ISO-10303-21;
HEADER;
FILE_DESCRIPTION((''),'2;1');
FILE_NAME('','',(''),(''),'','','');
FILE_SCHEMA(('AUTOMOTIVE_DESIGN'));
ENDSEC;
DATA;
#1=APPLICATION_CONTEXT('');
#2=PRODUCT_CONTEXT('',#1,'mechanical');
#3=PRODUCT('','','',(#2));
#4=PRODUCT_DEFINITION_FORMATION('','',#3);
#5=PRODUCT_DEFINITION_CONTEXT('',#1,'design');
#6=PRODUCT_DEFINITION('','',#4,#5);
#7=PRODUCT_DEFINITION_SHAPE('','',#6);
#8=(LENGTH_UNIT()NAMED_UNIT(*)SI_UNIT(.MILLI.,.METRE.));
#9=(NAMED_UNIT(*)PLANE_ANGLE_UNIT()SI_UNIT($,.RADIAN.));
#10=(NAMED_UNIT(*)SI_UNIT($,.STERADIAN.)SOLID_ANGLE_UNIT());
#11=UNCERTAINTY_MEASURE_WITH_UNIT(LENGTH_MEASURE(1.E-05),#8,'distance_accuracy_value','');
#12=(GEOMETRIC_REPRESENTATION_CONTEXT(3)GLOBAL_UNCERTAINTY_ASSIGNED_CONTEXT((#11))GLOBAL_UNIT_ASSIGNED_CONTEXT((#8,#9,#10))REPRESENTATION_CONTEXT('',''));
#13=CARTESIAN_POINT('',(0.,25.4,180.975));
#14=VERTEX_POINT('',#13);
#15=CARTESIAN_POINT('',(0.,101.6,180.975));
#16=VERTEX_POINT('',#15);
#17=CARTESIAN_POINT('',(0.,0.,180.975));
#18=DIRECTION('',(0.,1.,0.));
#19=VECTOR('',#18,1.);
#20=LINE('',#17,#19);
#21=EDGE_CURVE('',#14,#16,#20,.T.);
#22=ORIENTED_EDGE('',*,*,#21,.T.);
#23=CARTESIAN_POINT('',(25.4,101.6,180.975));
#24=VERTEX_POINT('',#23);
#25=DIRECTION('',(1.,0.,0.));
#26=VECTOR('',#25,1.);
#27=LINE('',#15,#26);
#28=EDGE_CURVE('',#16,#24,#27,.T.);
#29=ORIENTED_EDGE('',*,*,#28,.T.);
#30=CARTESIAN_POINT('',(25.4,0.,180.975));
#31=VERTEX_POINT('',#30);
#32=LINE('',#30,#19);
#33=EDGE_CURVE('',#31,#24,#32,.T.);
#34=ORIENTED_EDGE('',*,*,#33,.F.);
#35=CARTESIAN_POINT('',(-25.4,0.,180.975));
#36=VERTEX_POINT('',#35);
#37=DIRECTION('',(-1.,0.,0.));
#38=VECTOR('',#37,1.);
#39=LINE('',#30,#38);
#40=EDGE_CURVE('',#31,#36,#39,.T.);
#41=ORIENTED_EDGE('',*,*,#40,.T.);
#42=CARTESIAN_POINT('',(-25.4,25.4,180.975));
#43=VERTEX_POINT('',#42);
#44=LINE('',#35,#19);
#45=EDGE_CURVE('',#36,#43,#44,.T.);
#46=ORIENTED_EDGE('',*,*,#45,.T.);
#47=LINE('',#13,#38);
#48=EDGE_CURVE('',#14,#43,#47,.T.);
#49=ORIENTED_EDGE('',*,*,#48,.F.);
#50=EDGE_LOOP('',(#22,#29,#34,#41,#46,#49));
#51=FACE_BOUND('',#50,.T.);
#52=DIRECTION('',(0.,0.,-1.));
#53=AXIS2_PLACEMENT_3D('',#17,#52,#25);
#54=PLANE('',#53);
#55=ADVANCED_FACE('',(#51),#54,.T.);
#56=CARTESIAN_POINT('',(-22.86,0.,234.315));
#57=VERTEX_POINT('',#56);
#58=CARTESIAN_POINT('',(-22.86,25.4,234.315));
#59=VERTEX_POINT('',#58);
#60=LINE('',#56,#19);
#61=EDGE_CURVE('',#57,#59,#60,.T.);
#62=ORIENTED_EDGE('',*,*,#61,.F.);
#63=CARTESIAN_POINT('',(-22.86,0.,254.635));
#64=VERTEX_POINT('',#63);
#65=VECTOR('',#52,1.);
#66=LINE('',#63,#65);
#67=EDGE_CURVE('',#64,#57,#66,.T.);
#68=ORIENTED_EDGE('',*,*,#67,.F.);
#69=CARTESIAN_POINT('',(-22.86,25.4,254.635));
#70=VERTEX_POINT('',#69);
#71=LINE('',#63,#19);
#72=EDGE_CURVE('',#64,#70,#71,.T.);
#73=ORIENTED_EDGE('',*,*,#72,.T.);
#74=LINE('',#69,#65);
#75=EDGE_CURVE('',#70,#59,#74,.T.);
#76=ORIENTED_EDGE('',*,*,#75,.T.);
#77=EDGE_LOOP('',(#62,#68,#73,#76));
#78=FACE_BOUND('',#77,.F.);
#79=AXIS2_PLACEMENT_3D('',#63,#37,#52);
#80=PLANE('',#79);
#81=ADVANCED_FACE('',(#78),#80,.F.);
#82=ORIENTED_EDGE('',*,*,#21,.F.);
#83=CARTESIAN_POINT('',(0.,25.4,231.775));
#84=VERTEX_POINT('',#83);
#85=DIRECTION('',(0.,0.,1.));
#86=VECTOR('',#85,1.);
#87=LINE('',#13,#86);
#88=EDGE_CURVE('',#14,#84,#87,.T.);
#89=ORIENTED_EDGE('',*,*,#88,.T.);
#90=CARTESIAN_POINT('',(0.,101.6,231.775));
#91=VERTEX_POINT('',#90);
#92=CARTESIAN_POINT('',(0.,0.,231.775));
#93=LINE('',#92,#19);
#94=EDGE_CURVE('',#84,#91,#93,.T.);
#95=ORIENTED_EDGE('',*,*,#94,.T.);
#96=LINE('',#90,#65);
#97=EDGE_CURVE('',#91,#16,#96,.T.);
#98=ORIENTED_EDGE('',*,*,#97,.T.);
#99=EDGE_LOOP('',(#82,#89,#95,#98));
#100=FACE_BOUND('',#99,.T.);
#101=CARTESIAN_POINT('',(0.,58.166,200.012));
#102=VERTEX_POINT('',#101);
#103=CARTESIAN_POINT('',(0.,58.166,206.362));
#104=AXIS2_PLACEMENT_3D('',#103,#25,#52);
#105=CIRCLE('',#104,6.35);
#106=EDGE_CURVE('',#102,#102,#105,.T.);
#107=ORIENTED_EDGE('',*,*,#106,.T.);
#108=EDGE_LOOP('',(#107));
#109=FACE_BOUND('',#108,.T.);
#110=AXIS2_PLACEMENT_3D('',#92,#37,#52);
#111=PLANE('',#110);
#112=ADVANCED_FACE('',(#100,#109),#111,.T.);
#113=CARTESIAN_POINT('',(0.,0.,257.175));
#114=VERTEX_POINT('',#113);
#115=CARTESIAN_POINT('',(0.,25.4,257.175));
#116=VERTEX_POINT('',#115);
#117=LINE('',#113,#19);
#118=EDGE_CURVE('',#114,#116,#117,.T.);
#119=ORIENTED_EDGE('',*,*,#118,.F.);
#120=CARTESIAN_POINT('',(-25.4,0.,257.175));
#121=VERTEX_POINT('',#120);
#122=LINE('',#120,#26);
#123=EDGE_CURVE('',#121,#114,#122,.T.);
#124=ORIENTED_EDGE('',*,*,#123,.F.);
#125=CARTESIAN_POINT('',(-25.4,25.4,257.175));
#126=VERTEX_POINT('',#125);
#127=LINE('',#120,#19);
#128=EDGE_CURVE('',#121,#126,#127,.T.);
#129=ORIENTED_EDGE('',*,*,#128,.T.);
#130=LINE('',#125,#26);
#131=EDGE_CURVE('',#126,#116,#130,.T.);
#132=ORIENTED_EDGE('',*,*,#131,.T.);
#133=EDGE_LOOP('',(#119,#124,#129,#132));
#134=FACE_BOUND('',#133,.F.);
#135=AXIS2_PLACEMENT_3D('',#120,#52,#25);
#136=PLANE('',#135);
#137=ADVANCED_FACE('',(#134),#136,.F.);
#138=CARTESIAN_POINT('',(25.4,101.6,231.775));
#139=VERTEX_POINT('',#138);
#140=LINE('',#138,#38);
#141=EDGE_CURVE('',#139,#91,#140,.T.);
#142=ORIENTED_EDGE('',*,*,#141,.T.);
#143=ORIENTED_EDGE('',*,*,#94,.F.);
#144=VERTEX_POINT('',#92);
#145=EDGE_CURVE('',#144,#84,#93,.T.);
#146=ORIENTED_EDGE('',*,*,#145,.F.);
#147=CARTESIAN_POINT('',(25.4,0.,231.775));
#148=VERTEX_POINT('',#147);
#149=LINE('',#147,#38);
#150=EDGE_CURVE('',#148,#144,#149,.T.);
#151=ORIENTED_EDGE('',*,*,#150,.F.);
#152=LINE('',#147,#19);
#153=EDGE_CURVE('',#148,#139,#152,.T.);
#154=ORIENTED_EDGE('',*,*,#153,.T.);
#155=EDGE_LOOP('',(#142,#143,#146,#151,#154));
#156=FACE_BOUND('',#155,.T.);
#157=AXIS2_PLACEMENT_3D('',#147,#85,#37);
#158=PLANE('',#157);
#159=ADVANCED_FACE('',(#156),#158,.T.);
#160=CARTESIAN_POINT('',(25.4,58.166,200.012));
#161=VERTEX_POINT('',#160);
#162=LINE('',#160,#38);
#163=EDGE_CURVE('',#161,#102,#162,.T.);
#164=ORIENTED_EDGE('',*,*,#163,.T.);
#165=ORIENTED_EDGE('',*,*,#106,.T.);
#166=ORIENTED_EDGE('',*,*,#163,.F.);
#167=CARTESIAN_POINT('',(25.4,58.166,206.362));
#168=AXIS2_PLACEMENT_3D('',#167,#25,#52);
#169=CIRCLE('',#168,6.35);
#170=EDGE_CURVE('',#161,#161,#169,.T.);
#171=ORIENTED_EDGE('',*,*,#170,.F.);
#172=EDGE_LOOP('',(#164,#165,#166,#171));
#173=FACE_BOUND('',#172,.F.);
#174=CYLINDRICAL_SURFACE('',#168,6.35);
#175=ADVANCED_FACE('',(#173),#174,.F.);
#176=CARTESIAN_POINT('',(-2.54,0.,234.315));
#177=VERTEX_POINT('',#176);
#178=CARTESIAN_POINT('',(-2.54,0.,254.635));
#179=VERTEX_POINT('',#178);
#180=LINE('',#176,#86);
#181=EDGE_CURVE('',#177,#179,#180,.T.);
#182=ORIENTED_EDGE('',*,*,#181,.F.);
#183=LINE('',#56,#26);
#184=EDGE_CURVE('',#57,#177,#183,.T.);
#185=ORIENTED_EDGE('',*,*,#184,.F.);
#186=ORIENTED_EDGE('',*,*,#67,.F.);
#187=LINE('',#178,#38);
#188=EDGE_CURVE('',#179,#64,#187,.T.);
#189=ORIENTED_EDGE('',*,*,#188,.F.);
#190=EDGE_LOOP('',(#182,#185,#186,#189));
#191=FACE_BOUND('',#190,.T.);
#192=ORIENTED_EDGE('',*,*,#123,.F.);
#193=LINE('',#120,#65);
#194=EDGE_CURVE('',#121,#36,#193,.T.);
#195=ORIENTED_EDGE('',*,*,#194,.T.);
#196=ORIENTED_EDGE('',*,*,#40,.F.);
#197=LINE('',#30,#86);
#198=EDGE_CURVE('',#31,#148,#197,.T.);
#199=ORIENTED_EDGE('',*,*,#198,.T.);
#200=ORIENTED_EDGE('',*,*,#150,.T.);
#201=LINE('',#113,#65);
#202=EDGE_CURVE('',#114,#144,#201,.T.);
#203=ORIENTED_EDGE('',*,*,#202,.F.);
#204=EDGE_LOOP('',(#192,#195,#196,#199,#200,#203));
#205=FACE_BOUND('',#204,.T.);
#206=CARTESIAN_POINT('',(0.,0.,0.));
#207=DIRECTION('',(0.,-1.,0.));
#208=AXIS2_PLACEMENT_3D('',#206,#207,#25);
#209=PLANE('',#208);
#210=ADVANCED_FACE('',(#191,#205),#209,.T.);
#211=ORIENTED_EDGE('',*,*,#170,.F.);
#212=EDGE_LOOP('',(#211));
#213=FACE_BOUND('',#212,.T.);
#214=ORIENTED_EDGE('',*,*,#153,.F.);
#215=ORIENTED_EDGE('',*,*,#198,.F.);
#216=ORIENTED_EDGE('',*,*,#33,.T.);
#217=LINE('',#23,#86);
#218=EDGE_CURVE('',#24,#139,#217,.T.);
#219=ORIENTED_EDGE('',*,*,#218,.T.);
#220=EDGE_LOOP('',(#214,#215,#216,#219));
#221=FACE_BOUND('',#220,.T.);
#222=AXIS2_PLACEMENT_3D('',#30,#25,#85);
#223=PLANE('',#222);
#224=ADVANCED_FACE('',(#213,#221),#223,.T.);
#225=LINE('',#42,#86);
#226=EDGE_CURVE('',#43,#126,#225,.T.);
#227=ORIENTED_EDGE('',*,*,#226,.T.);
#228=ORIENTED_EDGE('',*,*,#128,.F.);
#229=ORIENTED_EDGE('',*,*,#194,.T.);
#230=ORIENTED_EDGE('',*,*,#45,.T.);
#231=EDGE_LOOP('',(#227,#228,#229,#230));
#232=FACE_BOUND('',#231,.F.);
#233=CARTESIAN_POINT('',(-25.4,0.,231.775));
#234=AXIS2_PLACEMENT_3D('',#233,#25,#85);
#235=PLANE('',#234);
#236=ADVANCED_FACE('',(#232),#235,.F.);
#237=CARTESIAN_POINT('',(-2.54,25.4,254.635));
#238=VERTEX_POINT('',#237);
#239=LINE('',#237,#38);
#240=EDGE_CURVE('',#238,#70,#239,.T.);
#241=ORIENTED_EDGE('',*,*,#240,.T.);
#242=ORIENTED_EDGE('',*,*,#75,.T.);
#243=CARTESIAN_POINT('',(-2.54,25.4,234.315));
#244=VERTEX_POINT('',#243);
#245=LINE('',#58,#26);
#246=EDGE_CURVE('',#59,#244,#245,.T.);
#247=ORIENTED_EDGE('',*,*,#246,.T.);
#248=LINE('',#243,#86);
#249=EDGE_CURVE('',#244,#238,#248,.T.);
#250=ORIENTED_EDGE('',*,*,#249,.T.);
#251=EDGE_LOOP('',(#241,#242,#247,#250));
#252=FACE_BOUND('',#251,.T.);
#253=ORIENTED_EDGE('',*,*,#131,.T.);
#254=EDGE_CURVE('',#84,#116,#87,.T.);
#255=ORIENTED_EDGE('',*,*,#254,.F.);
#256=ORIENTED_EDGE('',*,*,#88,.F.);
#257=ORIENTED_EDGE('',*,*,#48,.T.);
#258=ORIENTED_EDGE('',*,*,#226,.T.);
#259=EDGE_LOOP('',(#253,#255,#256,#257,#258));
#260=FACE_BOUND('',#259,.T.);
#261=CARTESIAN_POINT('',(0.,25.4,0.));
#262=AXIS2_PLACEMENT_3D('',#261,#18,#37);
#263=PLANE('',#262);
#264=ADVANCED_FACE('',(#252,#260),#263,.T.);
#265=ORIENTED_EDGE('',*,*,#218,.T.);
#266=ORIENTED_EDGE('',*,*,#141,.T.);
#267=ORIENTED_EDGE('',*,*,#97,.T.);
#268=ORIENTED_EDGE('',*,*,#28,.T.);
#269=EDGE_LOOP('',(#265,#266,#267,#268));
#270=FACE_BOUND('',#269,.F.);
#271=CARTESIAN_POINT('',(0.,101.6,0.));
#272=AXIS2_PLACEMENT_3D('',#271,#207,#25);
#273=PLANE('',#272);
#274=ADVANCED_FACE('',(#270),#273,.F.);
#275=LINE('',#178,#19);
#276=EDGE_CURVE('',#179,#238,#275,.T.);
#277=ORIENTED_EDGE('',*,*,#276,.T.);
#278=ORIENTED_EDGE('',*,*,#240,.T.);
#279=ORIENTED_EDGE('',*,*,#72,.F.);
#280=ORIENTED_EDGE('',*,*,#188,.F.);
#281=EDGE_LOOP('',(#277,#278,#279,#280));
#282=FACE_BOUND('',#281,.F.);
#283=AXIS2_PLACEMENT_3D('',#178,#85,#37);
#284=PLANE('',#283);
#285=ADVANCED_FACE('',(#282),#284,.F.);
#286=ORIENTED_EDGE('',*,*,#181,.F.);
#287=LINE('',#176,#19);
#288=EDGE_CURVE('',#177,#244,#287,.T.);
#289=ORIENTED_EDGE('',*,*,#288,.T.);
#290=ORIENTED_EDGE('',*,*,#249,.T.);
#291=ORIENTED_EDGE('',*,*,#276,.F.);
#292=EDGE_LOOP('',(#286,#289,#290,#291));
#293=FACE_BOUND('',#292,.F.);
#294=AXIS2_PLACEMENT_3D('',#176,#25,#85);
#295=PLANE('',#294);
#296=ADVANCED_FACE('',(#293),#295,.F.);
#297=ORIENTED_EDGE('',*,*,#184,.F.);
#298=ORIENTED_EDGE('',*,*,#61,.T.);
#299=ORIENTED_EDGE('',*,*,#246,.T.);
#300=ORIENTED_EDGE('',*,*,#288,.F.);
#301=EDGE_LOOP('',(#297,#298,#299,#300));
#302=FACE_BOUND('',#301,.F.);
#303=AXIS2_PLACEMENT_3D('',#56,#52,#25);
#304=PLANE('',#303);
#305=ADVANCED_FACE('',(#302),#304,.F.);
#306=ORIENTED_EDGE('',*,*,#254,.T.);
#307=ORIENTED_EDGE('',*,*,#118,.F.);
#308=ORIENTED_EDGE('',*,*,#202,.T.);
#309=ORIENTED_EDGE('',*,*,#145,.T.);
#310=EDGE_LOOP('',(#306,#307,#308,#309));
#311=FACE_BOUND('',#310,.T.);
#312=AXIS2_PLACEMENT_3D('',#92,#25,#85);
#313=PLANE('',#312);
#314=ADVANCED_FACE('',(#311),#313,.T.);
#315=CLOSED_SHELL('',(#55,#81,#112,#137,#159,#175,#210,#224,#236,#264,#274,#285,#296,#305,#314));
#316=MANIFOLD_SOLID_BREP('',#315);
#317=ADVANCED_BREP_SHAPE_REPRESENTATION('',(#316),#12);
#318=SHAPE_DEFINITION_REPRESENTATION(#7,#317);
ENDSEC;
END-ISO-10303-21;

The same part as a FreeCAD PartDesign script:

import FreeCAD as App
import Part
import Sketcher
from FreeCAD import Vector
Q = App.Units.Quantity


def add_polygon(sketch, points):
    """Adds a closed chain of lines whose ends are joined by coincident constraints."""
    first, n = sketch.GeometryCount, len(points)
    for a, b in zip(points, points[1:] + points[:1]):
        sketch.addGeometry(Part.LineSegment(App.Vector(*a, 0), App.Vector(*b, 0)), False)
    for i in range(n):
        sketch.addConstraint(Sketcher.Constraint("Coincident", first + i, 2, first + (i + 1) % n, 1))

doc = App.newDocument("Part")
params = doc.addObject("Spreadsheet::Sheet", "Params")
for row, (alias, value) in enumerate([
    ("sketch1_width", "1 in"),
    ("sketch1_height", "3 in"),
    ("sketch1_width2", "0.8 in"),
    ("pad1_length", "1 in"),
    ("sketch2_width", "1 in"),
    ("sketch2_height", "2 in"),
    ("pad2_length", "4 in"),
    ("sketch3_diameter", "0.5 in"),
    ("pocket1_length", "1 in"),
], start=1):
    params.set(f"A{row}", alias)
    params.set(f"B{row}", "=" + value)
    params.setAlias(f"B{row}", alias)

body = doc.addObject("PartDesign::Body", "Body")

sketch1 = doc.addObject("Sketcher::SketchObject", "Sketch")
body.addObject(sketch1)
sketch1.AttachmentSupport = (doc.XZ_Plane, [""])
sketch1.MapMode = "FlatFace"
add_polygon(sketch1, [(0, 257), (0, 181), (-25, 181), (-25, 257)])
add_polygon(sketch1, [(-23, 234), (-3, 234), (-3, 255), (-23, 255)])
sketch1.addConstraint([
    Sketcher.Constraint("Vertical", 0),
    Sketcher.Constraint("Horizontal", 1),
    Sketcher.Constraint("Vertical", 2),
    Sketcher.Constraint("Horizontal", 3),
    Sketcher.Constraint("Horizontal", 4),
    Sketcher.Constraint("Vertical", 5),
    Sketcher.Constraint("Horizontal", 6),
    Sketcher.Constraint("Vertical", 7),
    Sketcher.Constraint("PointOnObject", 0, 2, -2),
    Sketcher.Constraint("Equal", 6, 5),
    Sketcher.Constraint("DistanceX", 1, 2, 1, 1, Q("1 in")),
    Sketcher.Constraint("DistanceY", 0, 2, 0, 1, Q("3 in")),
    Sketcher.Constraint("DistanceX", 4, 1, 4, 2, Q("0.8 in")),
    Sketcher.Constraint("DistanceX", 4, 2, -1, 1, Q("0.1 in")),
    Sketcher.Constraint("DistanceY", 4, 2, 3, 2, Q("0.9 in")),
    Sketcher.Constraint("DistanceY", -1, 1, 0, 2, Q("7.125 in")),
])
sketch1.setExpression("Constraints[18]", "Params.sketch1_width")
sketch1.setExpression("Constraints[19]", "Params.sketch1_height")
sketch1.setExpression("Constraints[20]", "Params.sketch1_width2")
pad1 = doc.addObject("PartDesign::Pad", "Pad")
body.addObject(pad1)
pad1.Profile = sketch1
pad1.setExpression("Length", "Params.pad1_length")
pad1.Reversed = True

sketch2 = doc.addObject("Sketcher::SketchObject", "Sketch001")
body.addObject(sketch2)
sketch2.AttachmentSupport = (doc.XZ_Plane, [""])
sketch2.MapMode = "FlatFace"
add_polygon(sketch2, [(0, 232), (0, 181), (25, 181), (25, 232)])
sketch2.addConstraint([
    Sketcher.Constraint("Vertical", 0),
    Sketcher.Constraint("Horizontal", 1),
    Sketcher.Constraint("Vertical", 2),
    Sketcher.Constraint("Horizontal", 3),
    Sketcher.Constraint("PointOnObject", 0, 2, -2),
    Sketcher.Constraint("DistanceX", 1, 1, 1, 2, Q("1 in")),
    Sketcher.Constraint("DistanceY", 0, 2, 0, 1, Q("2 in")),
    Sketcher.Constraint("DistanceY", -1, 1, 0, 2, Q("7.125 in")),
])
sketch2.setExpression("Constraints[9]", "Params.sketch2_width")
sketch2.setExpression("Constraints[10]", "Params.sketch2_height")
pad2 = doc.addObject("PartDesign::Pad", "Pad001")
body.addObject(pad2)
pad2.Profile = sketch2
pad2.setExpression("Length", "Params.pad2_length")
pad2.Reversed = True

sketch3 = doc.addObject("Sketcher::SketchObject", "Sketch002")
body.addObject(sketch3)
sketch3.AttachmentSupport = (doc.YZ_Plane, [""])
sketch3.MapMode = "FlatFace"
sketch3.AttachmentOffset = App.Placement(Vector(0, 0, 1 * 25.4), App.Rotation())
sketch3.addGeometry(Part.Circle(Vector(58, 206, 0), Vector(0, 0, 1), 6), False)
sketch3.addConstraint([
    Sketcher.Constraint("Diameter", 0, Q("0.5 in")),
    Sketcher.Constraint("DistanceX", -1, 1, 0, 3, Q("2.29 in")),
    Sketcher.Constraint("DistanceY", -1, 1, 0, 3, Q("8.1245 in")),
])
sketch3.setExpression("Constraints[0]", "Params.sketch3_diameter")
pocket1 = doc.addObject("PartDesign::Pocket", "Pocket")
body.addObject(pocket1)
pocket1.Profile = sketch3
pocket1.setExpression("Length", "Params.pocket1_length")

doc.recompute()
